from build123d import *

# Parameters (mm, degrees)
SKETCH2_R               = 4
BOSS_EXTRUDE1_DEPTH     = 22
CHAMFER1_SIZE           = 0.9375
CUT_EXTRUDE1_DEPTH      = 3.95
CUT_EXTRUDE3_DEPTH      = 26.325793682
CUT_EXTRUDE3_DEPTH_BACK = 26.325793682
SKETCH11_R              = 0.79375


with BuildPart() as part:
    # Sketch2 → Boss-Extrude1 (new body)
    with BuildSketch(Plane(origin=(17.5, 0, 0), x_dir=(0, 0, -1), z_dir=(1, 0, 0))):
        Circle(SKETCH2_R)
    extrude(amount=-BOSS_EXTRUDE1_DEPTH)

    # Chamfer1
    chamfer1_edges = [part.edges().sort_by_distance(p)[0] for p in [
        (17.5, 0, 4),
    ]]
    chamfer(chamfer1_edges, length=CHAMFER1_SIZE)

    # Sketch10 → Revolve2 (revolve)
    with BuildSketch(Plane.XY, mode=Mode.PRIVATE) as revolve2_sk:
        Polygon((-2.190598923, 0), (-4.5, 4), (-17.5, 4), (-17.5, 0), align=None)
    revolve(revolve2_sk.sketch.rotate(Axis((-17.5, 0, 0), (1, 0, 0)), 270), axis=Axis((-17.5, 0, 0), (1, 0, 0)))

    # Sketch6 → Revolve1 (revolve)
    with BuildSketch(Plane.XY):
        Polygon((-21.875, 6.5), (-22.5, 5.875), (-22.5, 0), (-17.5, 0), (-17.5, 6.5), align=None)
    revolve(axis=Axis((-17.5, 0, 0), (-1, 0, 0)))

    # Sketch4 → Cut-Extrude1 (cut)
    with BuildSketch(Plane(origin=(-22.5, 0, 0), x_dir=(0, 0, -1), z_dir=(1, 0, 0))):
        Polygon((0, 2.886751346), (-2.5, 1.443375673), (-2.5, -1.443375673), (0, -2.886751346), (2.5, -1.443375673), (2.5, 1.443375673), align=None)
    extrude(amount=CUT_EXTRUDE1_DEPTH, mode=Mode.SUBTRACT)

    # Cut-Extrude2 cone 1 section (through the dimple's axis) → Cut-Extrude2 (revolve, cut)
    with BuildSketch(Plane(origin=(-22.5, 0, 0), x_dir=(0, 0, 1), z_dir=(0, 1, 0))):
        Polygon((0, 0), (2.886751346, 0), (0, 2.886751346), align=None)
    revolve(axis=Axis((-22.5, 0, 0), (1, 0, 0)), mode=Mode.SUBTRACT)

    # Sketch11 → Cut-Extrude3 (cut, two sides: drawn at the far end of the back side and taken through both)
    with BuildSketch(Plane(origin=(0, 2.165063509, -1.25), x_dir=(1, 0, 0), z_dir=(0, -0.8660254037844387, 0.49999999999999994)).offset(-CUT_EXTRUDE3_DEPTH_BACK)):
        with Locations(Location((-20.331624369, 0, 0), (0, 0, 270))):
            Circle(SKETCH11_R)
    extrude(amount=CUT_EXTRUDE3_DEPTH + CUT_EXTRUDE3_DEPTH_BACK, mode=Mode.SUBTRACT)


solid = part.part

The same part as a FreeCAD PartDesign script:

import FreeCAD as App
import Part
import Sketcher

V = App.Vector
Q = App.Units.Quantity


def edges_at(feature, points):
    """Names of the edges that pass closest to the given points."""
    edges = feature.Shape.Edges
    near = lambda p: min(range(len(edges)), key=lambda i: edges[i].distToShape(Part.Vertex(*p))[0])
    return sorted({f"Edge{near(p) + 1}" for p in points})

doc = App.newDocument("Part")
body = doc.addObject("PartDesign::Body", "Body")

# Sketch on YZ plane
sketch1 = doc.addObject("Sketcher::SketchObject", "Sketch")
body.addObject(sketch1)
sketch1.AttachmentSupport = (doc.YZ_Plane, [""])
sketch1.MapMode = "FlatFace"
sketch1.AttachmentOffset = App.Placement(V(0, 0, 17.5), App.Rotation())
sketch1.addGeometry(Part.Circle(V(0, 0, 0), V(0, 0, 1), 4), False)
sketch1.addConstraint([
    Sketcher.Constraint("Coincident", 0, 3, -1, 1),
    Sketcher.Constraint("Diameter", 0, Q("8 mm")),
])
pad1 = doc.addObject("PartDesign::Pad", "Pad")
body.addObject(pad1)
pad1.Profile = sketch1
pad1.Length = 22
pad1.Reversed = True
doc.recompute()

chamfer = doc.addObject("PartDesign::Chamfer", "Chamfer")
body.addObject(chamfer)
chamfer.Base = (pad1, edges_at(pad1, [(17.5, 0, 4)]))
chamfer.Size = 0.9375

# Sketch on XY plane
sketch2 = doc.addObject("Sketcher::SketchObject", "Sketch001")
body.addObject(sketch2)
sketch2.AttachmentSupport = (doc.XY_Plane, [""])
sketch2.MapMode = "FlatFace"
sketch2.addGeometry([
    Part.LineSegment(V(-2.190599, 0, 0), V(-4.5, 4, 0)),
    Part.LineSegment(V(-4.5, 4, 0), V(-17.5, 4, 0)),
    Part.LineSegment(V(-17.5, 4, 0), V(-17.5, 0, 0)),
    Part.LineSegment(V(-17.5, 0, 0), V(-2.190599, 0, 0)),
], False)
sketch2.addConstraint([
    Sketcher.Constraint("Coincident", 0, 2, 1, 1),
    Sketcher.Constraint("Coincident", 1, 2, 2, 1),
    Sketcher.Constraint("Coincident", 2, 2, 3, 1),
    Sketcher.Constraint("Coincident", 3, 2, 0, 1),
    Sketcher.Constraint("Horizontal", 1),
    Sketcher.Constraint("Vertical", 2),
    Sketcher.Constraint("Horizontal", 3),
    Sketcher.Constraint("PointOnObject", 2, 2, -1),
    Sketcher.Constraint("DistanceX", 1, 2, 1, 1, Q("13 mm")),
    Sketcher.Constraint("DistanceY", 2, 2, 2, 1, Q("4 mm")),
    Sketcher.Constraint("Angle", 0, Q("120 deg")),
    Sketcher.Constraint("DistanceX", 0, 2, -1, 1, Q("4.5 mm")),
])
revolution = doc.addObject("PartDesign::Revolution", "Revolution")
body.addObject(revolution)
revolution.Profile = sketch2
revolution.ReferenceAxis = (sketch2, ["H_Axis"])
revolution.Angle = 360

# Sketch on XY plane
sketch3 = doc.addObject("Sketcher::SketchObject", "Sketch002")
body.addObject(sketch3)
sketch3.AttachmentSupport = (doc.XY_Plane, [""])
sketch3.MapMode = "FlatFace"
sketch3.addGeometry([
    Part.LineSegment(V(-21.875, 6.5, 0), V(-22.5, 5.875, 0)),  # 0
    Part.LineSegment(V(-22.5, 5.875, 0), V(-22.5, 0, 0)),  # 1
    Part.LineSegment(V(-22.5, 0, 0), V(-17.5, 0, 0)),  # 2
    Part.LineSegment(V(-17.5, 0, 0), V(-17.5, 6.5, 0)),  # 3
    Part.LineSegment(V(-17.5, 6.5, 0), V(-21.875, 6.5, 0)),  # 4
], False)
sketch3.addConstraint([
    Sketcher.Constraint("Coincident", 0, 2, 1, 1),
    Sketcher.Constraint("Coincident", 1, 2, 2, 1),
    Sketcher.Constraint("Coincident", 2, 2, 3, 1),
    Sketcher.Constraint("Coincident", 3, 2, 4, 1),
    Sketcher.Constraint("Coincident", 4, 2, 0, 1),
    Sketcher.Constraint("Vertical", 1),
    Sketcher.Constraint("Horizontal", 2),
    Sketcher.Constraint("Vertical", 3),
    Sketcher.Constraint("Horizontal", 4),
    Sketcher.Constraint("PointOnObject", 1, 2, -1),
    Sketcher.Constraint("DistanceX", 2, 1, 2, 2, Q("5 mm")),
    Sketcher.Constraint("Angle", 0, Q("-135 deg")),
    Sketcher.Constraint("DistanceY", 3, 1, 3, 2, Q("6.5 mm")),
    Sketcher.Constraint("DistanceX", 0, 2, -1, 1, Q("22.5 mm")),
    Sketcher.Constraint("DistanceX", 4, 2, 4, 1, Q("4.375 mm")),
])
revolution2 = doc.addObject("PartDesign::Revolution", "Revolution001")
body.addObject(revolution2)
revolution2.Profile = sketch3
revolution2.ReferenceAxis = (sketch3, ["H_Axis"])
revolution2.Angle = 360

# Sketch on YZ plane
sketch4 = doc.addObject("Sketcher::SketchObject", "Sketch003")
body.addObject(sketch4)
sketch4.AttachmentSupport = (doc.YZ_Plane, [""])
sketch4.MapMode = "FlatFace"
sketch4.AttachmentOffset = App.Placement(V(0, 0, -22.5), App.Rotation())
sketch4.addGeometry([
    Part.LineSegment(V(2.886751, 0, 0), V(1.443376, 2.5, 0)),  # 0
    Part.LineSegment(V(1.443376, 2.5, 0), V(-1.443376, 2.5, 0)),  # 1
    Part.LineSegment(V(-1.443376, 2.5, 0), V(-2.886751, 0, 0)),  # 2
    Part.LineSegment(V(-2.886751, 0, 0), V(-1.443376, -2.5, 0)),  # 3
    Part.LineSegment(V(-1.443376, -2.5, 0), V(1.443376, -2.5, 0)),  # 4
    Part.LineSegment(V(1.443376, -2.5, 0), V(2.886751, 0, 0)),  # 5
], False)
sketch4.addConstraint([
    Sketcher.Constraint("Coincident", 0, 2, 1, 1),
    Sketcher.Constraint("Coincident", 1, 2, 2, 1),
    Sketcher.Constraint("Coincident", 2, 2, 3, 1),
    Sketcher.Constraint("Coincident", 3, 2, 4, 1),
    Sketcher.Constraint("Coincident", 4, 2, 5, 1),
    Sketcher.Constraint("Coincident", 5, 2, 0, 1),
    Sketcher.Constraint("Horizontal", 1),
    Sketcher.Constraint("Horizontal", 4),
    Sketcher.Constraint("Symmetric", 0, 2, 3, 2, -1, 1),
    Sketcher.Constraint("Symmetric", 2, 2, 5, 2, -1, 1),
    Sketcher.Constraint("PointOnObject", 2, 2, -1),
    Sketcher.Constraint("Parallel", 2, 5),
    Sketcher.Constraint("Vertical", 1, 2, 3, 2),
    Sketcher.Constraint("Angle", 0, Q("120 deg")),
    Sketcher.Constraint("DistanceY", 3, 2, 1, 2, Q("5 mm")),
    Sketcher.Constraint("DistanceX", 1, 2, 1, 1, Q("2.886751 mm")),
])
pocket1 = doc.addObject("PartDesign::Pocket", "Pocket")
body.addObject(pocket1)
pocket1.Profile = sketch4
pocket1.Length = 3.95
pocket1.Reversed = True

# Sketch on XZ plane
sketch5 = doc.addObject("Sketcher::SketchObject", "Sketch004")
body.addObject(sketch5)
sketch5.AttachmentSupport = (doc.XZ_Plane, [""])
sketch5.MapMode = "FlatFace"
sketch5.addGeometry([
    Part.LineSegment(V(-22.5, 0, 0), V(-22.5, 2.886751, 0)),
    Part.LineSegment(V(-22.5, 2.886751, 0), V(-19.613249, 0, 0)),
    Part.LineSegment(V(-19.613249, 0, 0), V(-22.5, 0, 0)),
], False)
sketch5.addConstraint([
    Sketcher.Constraint("Coincident", 0, 2, 1, 1),
    Sketcher.Constraint("Coincident", 1, 2, 2, 1),
    Sketcher.Constraint("Coincident", 2, 2, 0, 1),
    Sketcher.Constraint("Vertical", 0),
    Sketcher.Constraint("Horizontal", 2),
    Sketcher.Constraint("PointOnObject", 1, 2, -1),
    Sketcher.Constraint("Equal", 2, 0),
    Sketcher.Constraint("DistanceX", 0, 2, -1, 1, Q("22.5 mm")),
    Sketcher.Constraint("DistanceX", 2, 2, 2, 1, Q("2.886751 mm")),
])
groove = doc.addObject("PartDesign::Groove", "Groove")
body.addObject(groove)
groove.Profile = sketch5
groove.ReferenceAxis = (sketch5, ["H_Axis"])
groove.Angle = 360

# Sketch on an angled plane
sketch6 = doc.addObject("Sketcher::SketchObject", "Sketch005")
body.addObject(sketch6)
sketch6.Placement = App.Placement(V(0, 2.165064, -1.25), App.Rotation(V(1, 0, 0), V(0, 0.5, 0.866025404), V(0, -0.866025404, 0.5), "ZXY"))
sketch6.addGeometry(Part.Circle(V(-20.331624, 0, 0), V(0, 0, 1), 0.79375), False)
sketch6.addConstraint([
    Sketcher.Constraint("PointOnObject", 0, 3, -1),
    Sketcher.Constraint("Diameter", 0, Q("1.5875 mm")),
    Sketcher.Constraint("DistanceX", 0, 3, -1, 1, Q("20.331624 mm")),
])
pocket2 = doc.addObject("PartDesign::Pocket", "Pocket001")
body.addObject(pocket2)
pocket2.Profile = sketch6
pocket2.Type = "ThroughAll"
pocket2.Midplane = True

doc.recompute()
